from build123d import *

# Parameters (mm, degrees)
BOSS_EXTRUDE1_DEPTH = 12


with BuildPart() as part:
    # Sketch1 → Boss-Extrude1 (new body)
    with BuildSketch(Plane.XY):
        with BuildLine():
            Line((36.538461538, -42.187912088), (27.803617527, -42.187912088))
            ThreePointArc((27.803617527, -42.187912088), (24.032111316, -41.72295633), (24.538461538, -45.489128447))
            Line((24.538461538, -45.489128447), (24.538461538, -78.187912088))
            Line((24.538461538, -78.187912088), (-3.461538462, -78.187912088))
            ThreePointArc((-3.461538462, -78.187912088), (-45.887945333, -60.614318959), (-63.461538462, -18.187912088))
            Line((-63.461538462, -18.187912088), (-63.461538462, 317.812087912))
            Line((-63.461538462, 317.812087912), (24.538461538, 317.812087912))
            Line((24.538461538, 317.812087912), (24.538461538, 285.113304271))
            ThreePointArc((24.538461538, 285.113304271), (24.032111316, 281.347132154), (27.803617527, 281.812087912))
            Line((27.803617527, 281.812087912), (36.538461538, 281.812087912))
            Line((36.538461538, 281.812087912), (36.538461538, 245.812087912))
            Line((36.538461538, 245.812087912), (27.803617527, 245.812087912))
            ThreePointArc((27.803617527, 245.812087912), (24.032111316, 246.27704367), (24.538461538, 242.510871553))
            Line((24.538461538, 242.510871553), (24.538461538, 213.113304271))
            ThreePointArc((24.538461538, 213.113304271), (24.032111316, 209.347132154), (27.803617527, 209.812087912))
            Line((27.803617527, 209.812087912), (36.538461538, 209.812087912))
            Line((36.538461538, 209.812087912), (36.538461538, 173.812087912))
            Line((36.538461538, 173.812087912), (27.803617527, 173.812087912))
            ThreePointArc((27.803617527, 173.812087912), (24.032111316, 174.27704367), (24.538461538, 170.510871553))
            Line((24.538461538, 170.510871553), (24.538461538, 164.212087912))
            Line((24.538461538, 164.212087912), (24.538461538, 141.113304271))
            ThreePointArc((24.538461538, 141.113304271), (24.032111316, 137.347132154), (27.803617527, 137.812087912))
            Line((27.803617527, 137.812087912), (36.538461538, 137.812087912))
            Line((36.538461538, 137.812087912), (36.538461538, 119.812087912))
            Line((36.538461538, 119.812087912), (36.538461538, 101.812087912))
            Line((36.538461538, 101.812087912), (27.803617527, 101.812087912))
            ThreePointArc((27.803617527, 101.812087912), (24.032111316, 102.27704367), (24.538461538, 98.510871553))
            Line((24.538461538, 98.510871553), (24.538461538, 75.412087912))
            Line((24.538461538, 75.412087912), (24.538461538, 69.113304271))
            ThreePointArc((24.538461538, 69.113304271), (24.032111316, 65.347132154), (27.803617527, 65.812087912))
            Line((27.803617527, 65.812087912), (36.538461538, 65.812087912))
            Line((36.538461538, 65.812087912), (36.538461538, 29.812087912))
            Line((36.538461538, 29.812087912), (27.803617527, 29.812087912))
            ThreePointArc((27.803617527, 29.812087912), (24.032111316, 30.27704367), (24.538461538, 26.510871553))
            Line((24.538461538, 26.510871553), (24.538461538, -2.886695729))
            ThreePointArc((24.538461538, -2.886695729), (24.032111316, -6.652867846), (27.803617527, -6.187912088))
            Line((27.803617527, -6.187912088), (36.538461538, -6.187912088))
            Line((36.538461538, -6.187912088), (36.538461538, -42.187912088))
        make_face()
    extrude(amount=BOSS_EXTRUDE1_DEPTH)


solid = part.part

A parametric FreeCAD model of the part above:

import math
import FreeCAD as App
import Part
import Sketcher

doc = App.newDocument("Part")
body = doc.addObject("PartDesign::Body", "Body")

# Sketch on XY plane
sketch1 = body.newObject("Sketcher::SketchObject", "Sketch")
sketch1.AttachmentSupport = (doc.getObject("XY_Plane"), [""])
sketch1.MapMode = "FlatFace"
sketch1.addGeometry([
    Part.LineSegment(App.Vector(27.8, -42.2, 0), App.Vector(36.5, -42.2, 0)),  # 0
    Part.LineSegment(App.Vector(36.5, -42.2, 0), App.Vector(36.5, -6.2, 0)),  # 1
    Part.LineSegment(App.Vector(36.5, -6.2, 0), App.Vector(27.8, -6.2, 0)),  # 2
    Part.ArcOfCircle(Part.Circle(App.Vector(25.7, -5, 0), App.Vector(0, 0, 1), 2.4), math.radians(120), math.radians(329)),  # 3
    Part.LineSegment(App.Vector(24.5, -2.9, 0), App.Vector(24.5, 26.5, 0)),  # 4
    Part.ArcOfCircle(Part.Circle(App.Vector(25.7, 28.6, 0), App.Vector(0, 0, 1), 2.4), math.radians(31), math.radians(240)),  # 5
    Part.LineSegment(App.Vector(27.8, 29.8, 0), App.Vector(36.5, 29.8, 0)),  # 6
    Part.LineSegment(App.Vector(36.5, 29.8, 0), App.Vector(36.5, 65.8, 0)),  # 7
    Part.LineSegment(App.Vector(36.5, 65.8, 0), App.Vector(27.8, 65.8, 0)),  # 8
    Part.ArcOfCircle(Part.Circle(App.Vector(25.7, 67, 0), App.Vector(0, 0, 1), 2.4), math.radians(120), math.radians(329)),  # 9
    Part.LineSegment(App.Vector(24.5, 69.1, 0), App.Vector(24.5, 98.5, 0)),  # 10
    Part.ArcOfCircle(Part.Circle(App.Vector(25.7, 100.6, 0), App.Vector(0, 0, 1), 2.4), math.radians(31), math.radians(240)),  # 11
    Part.LineSegment(App.Vector(27.8, 101.8, 0), App.Vector(36.5, 101.8, 0)),  # 12
    Part.LineSegment(App.Vector(36.5, 101.8, 0), App.Vector(36.5, 137.8, 0)),  # 13
    Part.LineSegment(App.Vector(36.5, 137.8, 0), App.Vector(27.8, 137.8, 0)),  # 14
    Part.ArcOfCircle(Part.Circle(App.Vector(25.7, 139, 0), App.Vector(0, 0, 1), 2.4), math.radians(120), math.radians(329)),  # 15
    Part.LineSegment(App.Vector(24.5, 141.1, 0), App.Vector(24.5, 170.5, 0)),  # 16
    Part.ArcOfCircle(Part.Circle(App.Vector(25.7, 172.6, 0), App.Vector(0, 0, 1), 2.4), math.radians(31), math.radians(240)),  # 17
    Part.LineSegment(App.Vector(27.8, 173.8, 0), App.Vector(36.5, 173.8, 0)),  # 18
    Part.LineSegment(App.Vector(36.5, 173.8, 0), App.Vector(36.5, 209.8, 0)),  # 19
    Part.LineSegment(App.Vector(36.5, 209.8, 0), App.Vector(27.8, 209.8, 0)),  # 20
    Part.ArcOfCircle(Part.Circle(App.Vector(25.7, 211, 0), App.Vector(0, 0, 1), 2.4), math.radians(120), math.radians(329)),  # 21
    Part.LineSegment(App.Vector(24.5, 213.1, 0), App.Vector(24.5, 242.5, 0)),  # 22
    Part.ArcOfCircle(Part.Circle(App.Vector(25.7, 244.6, 0), App.Vector(0, 0, 1), 2.4), math.radians(31), math.radians(240)),  # 23
    Part.LineSegment(App.Vector(27.8, 245.8, 0), App.Vector(36.5, 245.8, 0)),  # 24
    Part.LineSegment(App.Vector(36.5, 245.8, 0), App.Vector(36.5, 281.8, 0)),  # 25
    Part.LineSegment(App.Vector(36.5, 281.8, 0), App.Vector(27.8, 281.8, 0)),  # 26
    Part.ArcOfCircle(Part.Circle(App.Vector(25.7, 283, 0), App.Vector(0, 0, 1), 2.4), math.radians(120), math.radians(329)),  # 27
    Part.LineSegment(App.Vector(24.5, 285.1, 0), App.Vector(24.5, 317.8, 0)),  # 28
    Part.LineSegment(App.Vector(24.5, 317.8, 0), App.Vector(-63.5, 317.8, 0)),  # 29
    Part.LineSegment(App.Vector(-63.5, 317.8, 0), App.Vector(-63.5, -18.2, 0)),  # 30
    Part.ArcOfCircle(Part.Circle(App.Vector(-3.5, -18.2, 0), App.Vector(0, 0, 1), 60), math.radians(-180), math.radians(-90)),  # 31
    Part.LineSegment(App.Vector(-3.5, -78.2, 0), App.Vector(24.5, -78.2, 0)),  # 32
    Part.LineSegment(App.Vector(24.5, -78.2, 0), App.Vector(24.5, -45.5, 0)),  # 33
    Part.ArcOfCircle(Part.Circle(App.Vector(25.7, -43.4, 0), App.Vector(0, 0, 1), 2.4), math.radians(31), math.radians(240)),  # 34
], False)
sketch1.addConstraint([
    Sketcher.Constraint("Coincident", 0, 2, 1, 1),
    Sketcher.Constraint("Coincident", 1, 2, 2, 1),
    Sketcher.Constraint("Coincident", 2, 2, 3, 2),
    Sketcher.Constraint("Coincident", 3, 1, 4, 1),
    Sketcher.Constraint("Coincident", 4, 2, 5, 2),
    Sketcher.Constraint("Coincident", 5, 1, 6, 1),
    Sketcher.Constraint("Coincident", 6, 2, 7, 1),
    Sketcher.Constraint("Coincident", 7, 2, 8, 1),
    Sketcher.Constraint("Coincident", 8, 2, 9, 2),
    Sketcher.Constraint("Coincident", 9, 1, 10, 1),
    Sketcher.Constraint("Coincident", 10, 2, 11, 2),
    Sketcher.Constraint("Coincident", 11, 1, 12, 1),
    Sketcher.Constraint("Coincident", 12, 2, 13, 1),
    Sketcher.Constraint("Coincident", 13, 2, 14, 1),
    Sketcher.Constraint("Coincident", 14, 2, 15, 2),
    Sketcher.Constraint("Coincident", 15, 1, 16, 1),
    Sketcher.Constraint("Coincident", 16, 2, 17, 2),
    Sketcher.Constraint("Coincident", 17, 1, 18, 1),
    Sketcher.Constraint("Coincident", 18, 2, 19, 1),
    Sketcher.Constraint("Coincident", 19, 2, 20, 1),
    Sketcher.Constraint("Coincident", 20, 2, 21, 2),
    Sketcher.Constraint("Coincident", 21, 1, 22, 1),
    Sketcher.Constraint("Coincident", 22, 2, 23, 2),
    Sketcher.Constraint("Coincident", 23, 1, 24, 1),
    Sketcher.Constraint("Coincident", 24, 2, 25, 1),
    Sketcher.Constraint("Coincident", 25, 2, 26, 1),
    Sketcher.Constraint("Coincident", 26, 2, 27, 2),
    Sketcher.Constraint("Coincident", 27, 1, 28, 1),
    Sketcher.Constraint("Coincident", 28, 2, 29, 1),
    Sketcher.Constraint("Coincident", 29, 2, 30, 1),
    Sketcher.Constraint("Tangent", 30, 2, 31, 1),
    Sketcher.Constraint("Tangent", 31, 2, 32, 1),
    Sketcher.Constraint("Coincident", 32, 2, 33, 1),
    Sketcher.Constraint("Coincident", 33, 2, 34, 2),
    Sketcher.Constraint("Coincident", 34, 1, 0, 1),
    Sketcher.Constraint("Horizontal", 0),
    Sketcher.Constraint("Vertical", 1),
    Sketcher.Constraint("Horizontal", 2),
    Sketcher.Constraint("Vertical", 4),
    Sketcher.Constraint("Horizontal", 6),
    Sketcher.Constraint("Vertical", 7),
    Sketcher.Constraint("Horizontal", 8),
    Sketcher.Constraint("Vertical", 10),
    Sketcher.Constraint("Horizontal", 12),
    Sketcher.Constraint("Vertical", 13),
    Sketcher.Constraint("Horizontal", 14),
    Sketcher.Constraint("Vertical", 16),
    Sketcher.Constraint("Horizontal", 18),
    Sketcher.Constraint("Vertical", 19),
    Sketcher.Constraint("Horizontal", 20),
    Sketcher.Constraint("Vertical", 22),
    Sketcher.Constraint("Horizontal", 24),
    Sketcher.Constraint("Vertical", 25),
    Sketcher.Constraint("Horizontal", 26),
    Sketcher.Constraint("Vertical", 28),
    Sketcher.Constraint("Horizontal", 29),
    Sketcher.Constraint("Vertical", 30),
    Sketcher.Constraint("Horizontal", 32),
    Sketcher.Constraint("Vertical", 33),
    Sketcher.Constraint("Equal", 3, 5),
    Sketcher.Constraint("Equal", 5, 9),
    Sketcher.Constraint("Equal", 9, 11),
    Sketcher.Constraint("Equal", 11, 15),
    Sketcher.Constraint("Equal", 15, 17),
    Sketcher.Constraint("Equal", 17, 21),
    Sketcher.Constraint("Equal", 21, 23),
    Sketcher.Constraint("Equal", 23, 27),
    Sketcher.Constraint("Equal", 27, 34),
    Sketcher.Constraint("Vertical", 3, 3, 5, 3),
    Sketcher.Constraint("Vertical", 5, 3, 9, 3),
    Sketcher.Constraint("Vertical", 9, 3, 11, 3),
    Sketcher.Constraint("Vertical", 11, 3, 15, 3),
    Sketcher.Constraint("Vertical", 15, 3, 17, 3),
    Sketcher.Constraint("Vertical", 17, 3, 21, 3),
    Sketcher.Constraint("Vertical", 21, 3, 23, 3),
    Sketcher.Constraint("Vertical", 23, 3, 27, 3),
    Sketcher.Constraint("Vertical", 27, 3, 34, 3),
    Sketcher.Constraint("Vertical", 2, 2, 5, 1),
    Sketcher.Constraint("Vertical", 1, 2, 6, 2),
    Sketcher.Constraint("Vertical", 5, 1, 8, 2),
    Sketcher.Constraint("Vertical", 4, 2, 9, 1),
    Sketcher.Constraint("Vertical", 8, 2, 11, 1),
    Sketcher.Constraint("Vertical", 7, 2, 12, 2),
    Sketcher.Constraint("Vertical", 11, 1, 14, 2),
    Sketcher.Constraint("Vertical", 10, 2, 15, 1),
    Sketcher.Constraint("Vertical", 14, 2, 17, 1),
    Sketcher.Constraint("Vertical", 13, 2, 18, 2),
    Sketcher.Constraint("Vertical", 17, 1, 20, 2),
    Sketcher.Constraint("Vertical", 16, 2, 21, 1),
    Sketcher.Constraint("Vertical", 20, 2, 23, 1),
    Sketcher.Constraint("Vertical", 19, 2, 24, 2),
    Sketcher.Constraint("Vertical", 23, 1, 26, 2),
    Sketcher.Constraint("Vertical", 22, 2, 27, 1),
    Sketcher.Constraint("Vertical", 28, 2, 32, 2),
    Sketcher.Constraint("Vertical", 26, 2, 34, 1),
    Sketcher.Constraint("Equal", 1, 7),
    Sketcher.Constraint("Equal", 4, 10),
    Sketcher.Constraint("Equal", 7, 13),
    Sketcher.Constraint("Equal", 10, 16),
    Sketcher.Constraint("Equal", 13, 19),
    Sketcher.Constraint("Equal", 16, 22),
    Sketcher.Constraint("Equal", 19, 25),
    Sketcher.Constraint("Equal", 28, 33),
    Sketcher.Constraint("Radius", 31, 60.0),
    Sketcher.Constraint("Radius", 3, 2.4),
    Sketcher.Constraint("DistanceX", 29, 2, 29, 1, 88.0),
    Sketcher.Constraint("DistanceY", 1, 1, 1, 2, 36.0),
    Sketcher.Constraint("DistanceY", 30, 2, 30, 1, 336.0),
    Sketcher.Constraint("DistanceY", 3, 3, 9, 3, 72.0),
    Sketcher.Constraint("DistanceX", 31, 3, 0, 2, 40.0),
    Sketcher.Constraint("DistanceX", 31, 3, 3, 3, 29.2),
    Sketcher.Constraint("DistanceX", 0, 1, 0, 2, 8.734844),
    Sketcher.Constraint("DistanceX", -1, 1, 3, 3, 25.738462),
    Sketcher.Constraint("DistanceY", -1, 1, 4, 2, 26.510872),
])
pad1 = body.newObject("PartDesign::Pad", "Pad")
pad1.Profile = sketch1
pad1.Length = 12

doc.recompute()
